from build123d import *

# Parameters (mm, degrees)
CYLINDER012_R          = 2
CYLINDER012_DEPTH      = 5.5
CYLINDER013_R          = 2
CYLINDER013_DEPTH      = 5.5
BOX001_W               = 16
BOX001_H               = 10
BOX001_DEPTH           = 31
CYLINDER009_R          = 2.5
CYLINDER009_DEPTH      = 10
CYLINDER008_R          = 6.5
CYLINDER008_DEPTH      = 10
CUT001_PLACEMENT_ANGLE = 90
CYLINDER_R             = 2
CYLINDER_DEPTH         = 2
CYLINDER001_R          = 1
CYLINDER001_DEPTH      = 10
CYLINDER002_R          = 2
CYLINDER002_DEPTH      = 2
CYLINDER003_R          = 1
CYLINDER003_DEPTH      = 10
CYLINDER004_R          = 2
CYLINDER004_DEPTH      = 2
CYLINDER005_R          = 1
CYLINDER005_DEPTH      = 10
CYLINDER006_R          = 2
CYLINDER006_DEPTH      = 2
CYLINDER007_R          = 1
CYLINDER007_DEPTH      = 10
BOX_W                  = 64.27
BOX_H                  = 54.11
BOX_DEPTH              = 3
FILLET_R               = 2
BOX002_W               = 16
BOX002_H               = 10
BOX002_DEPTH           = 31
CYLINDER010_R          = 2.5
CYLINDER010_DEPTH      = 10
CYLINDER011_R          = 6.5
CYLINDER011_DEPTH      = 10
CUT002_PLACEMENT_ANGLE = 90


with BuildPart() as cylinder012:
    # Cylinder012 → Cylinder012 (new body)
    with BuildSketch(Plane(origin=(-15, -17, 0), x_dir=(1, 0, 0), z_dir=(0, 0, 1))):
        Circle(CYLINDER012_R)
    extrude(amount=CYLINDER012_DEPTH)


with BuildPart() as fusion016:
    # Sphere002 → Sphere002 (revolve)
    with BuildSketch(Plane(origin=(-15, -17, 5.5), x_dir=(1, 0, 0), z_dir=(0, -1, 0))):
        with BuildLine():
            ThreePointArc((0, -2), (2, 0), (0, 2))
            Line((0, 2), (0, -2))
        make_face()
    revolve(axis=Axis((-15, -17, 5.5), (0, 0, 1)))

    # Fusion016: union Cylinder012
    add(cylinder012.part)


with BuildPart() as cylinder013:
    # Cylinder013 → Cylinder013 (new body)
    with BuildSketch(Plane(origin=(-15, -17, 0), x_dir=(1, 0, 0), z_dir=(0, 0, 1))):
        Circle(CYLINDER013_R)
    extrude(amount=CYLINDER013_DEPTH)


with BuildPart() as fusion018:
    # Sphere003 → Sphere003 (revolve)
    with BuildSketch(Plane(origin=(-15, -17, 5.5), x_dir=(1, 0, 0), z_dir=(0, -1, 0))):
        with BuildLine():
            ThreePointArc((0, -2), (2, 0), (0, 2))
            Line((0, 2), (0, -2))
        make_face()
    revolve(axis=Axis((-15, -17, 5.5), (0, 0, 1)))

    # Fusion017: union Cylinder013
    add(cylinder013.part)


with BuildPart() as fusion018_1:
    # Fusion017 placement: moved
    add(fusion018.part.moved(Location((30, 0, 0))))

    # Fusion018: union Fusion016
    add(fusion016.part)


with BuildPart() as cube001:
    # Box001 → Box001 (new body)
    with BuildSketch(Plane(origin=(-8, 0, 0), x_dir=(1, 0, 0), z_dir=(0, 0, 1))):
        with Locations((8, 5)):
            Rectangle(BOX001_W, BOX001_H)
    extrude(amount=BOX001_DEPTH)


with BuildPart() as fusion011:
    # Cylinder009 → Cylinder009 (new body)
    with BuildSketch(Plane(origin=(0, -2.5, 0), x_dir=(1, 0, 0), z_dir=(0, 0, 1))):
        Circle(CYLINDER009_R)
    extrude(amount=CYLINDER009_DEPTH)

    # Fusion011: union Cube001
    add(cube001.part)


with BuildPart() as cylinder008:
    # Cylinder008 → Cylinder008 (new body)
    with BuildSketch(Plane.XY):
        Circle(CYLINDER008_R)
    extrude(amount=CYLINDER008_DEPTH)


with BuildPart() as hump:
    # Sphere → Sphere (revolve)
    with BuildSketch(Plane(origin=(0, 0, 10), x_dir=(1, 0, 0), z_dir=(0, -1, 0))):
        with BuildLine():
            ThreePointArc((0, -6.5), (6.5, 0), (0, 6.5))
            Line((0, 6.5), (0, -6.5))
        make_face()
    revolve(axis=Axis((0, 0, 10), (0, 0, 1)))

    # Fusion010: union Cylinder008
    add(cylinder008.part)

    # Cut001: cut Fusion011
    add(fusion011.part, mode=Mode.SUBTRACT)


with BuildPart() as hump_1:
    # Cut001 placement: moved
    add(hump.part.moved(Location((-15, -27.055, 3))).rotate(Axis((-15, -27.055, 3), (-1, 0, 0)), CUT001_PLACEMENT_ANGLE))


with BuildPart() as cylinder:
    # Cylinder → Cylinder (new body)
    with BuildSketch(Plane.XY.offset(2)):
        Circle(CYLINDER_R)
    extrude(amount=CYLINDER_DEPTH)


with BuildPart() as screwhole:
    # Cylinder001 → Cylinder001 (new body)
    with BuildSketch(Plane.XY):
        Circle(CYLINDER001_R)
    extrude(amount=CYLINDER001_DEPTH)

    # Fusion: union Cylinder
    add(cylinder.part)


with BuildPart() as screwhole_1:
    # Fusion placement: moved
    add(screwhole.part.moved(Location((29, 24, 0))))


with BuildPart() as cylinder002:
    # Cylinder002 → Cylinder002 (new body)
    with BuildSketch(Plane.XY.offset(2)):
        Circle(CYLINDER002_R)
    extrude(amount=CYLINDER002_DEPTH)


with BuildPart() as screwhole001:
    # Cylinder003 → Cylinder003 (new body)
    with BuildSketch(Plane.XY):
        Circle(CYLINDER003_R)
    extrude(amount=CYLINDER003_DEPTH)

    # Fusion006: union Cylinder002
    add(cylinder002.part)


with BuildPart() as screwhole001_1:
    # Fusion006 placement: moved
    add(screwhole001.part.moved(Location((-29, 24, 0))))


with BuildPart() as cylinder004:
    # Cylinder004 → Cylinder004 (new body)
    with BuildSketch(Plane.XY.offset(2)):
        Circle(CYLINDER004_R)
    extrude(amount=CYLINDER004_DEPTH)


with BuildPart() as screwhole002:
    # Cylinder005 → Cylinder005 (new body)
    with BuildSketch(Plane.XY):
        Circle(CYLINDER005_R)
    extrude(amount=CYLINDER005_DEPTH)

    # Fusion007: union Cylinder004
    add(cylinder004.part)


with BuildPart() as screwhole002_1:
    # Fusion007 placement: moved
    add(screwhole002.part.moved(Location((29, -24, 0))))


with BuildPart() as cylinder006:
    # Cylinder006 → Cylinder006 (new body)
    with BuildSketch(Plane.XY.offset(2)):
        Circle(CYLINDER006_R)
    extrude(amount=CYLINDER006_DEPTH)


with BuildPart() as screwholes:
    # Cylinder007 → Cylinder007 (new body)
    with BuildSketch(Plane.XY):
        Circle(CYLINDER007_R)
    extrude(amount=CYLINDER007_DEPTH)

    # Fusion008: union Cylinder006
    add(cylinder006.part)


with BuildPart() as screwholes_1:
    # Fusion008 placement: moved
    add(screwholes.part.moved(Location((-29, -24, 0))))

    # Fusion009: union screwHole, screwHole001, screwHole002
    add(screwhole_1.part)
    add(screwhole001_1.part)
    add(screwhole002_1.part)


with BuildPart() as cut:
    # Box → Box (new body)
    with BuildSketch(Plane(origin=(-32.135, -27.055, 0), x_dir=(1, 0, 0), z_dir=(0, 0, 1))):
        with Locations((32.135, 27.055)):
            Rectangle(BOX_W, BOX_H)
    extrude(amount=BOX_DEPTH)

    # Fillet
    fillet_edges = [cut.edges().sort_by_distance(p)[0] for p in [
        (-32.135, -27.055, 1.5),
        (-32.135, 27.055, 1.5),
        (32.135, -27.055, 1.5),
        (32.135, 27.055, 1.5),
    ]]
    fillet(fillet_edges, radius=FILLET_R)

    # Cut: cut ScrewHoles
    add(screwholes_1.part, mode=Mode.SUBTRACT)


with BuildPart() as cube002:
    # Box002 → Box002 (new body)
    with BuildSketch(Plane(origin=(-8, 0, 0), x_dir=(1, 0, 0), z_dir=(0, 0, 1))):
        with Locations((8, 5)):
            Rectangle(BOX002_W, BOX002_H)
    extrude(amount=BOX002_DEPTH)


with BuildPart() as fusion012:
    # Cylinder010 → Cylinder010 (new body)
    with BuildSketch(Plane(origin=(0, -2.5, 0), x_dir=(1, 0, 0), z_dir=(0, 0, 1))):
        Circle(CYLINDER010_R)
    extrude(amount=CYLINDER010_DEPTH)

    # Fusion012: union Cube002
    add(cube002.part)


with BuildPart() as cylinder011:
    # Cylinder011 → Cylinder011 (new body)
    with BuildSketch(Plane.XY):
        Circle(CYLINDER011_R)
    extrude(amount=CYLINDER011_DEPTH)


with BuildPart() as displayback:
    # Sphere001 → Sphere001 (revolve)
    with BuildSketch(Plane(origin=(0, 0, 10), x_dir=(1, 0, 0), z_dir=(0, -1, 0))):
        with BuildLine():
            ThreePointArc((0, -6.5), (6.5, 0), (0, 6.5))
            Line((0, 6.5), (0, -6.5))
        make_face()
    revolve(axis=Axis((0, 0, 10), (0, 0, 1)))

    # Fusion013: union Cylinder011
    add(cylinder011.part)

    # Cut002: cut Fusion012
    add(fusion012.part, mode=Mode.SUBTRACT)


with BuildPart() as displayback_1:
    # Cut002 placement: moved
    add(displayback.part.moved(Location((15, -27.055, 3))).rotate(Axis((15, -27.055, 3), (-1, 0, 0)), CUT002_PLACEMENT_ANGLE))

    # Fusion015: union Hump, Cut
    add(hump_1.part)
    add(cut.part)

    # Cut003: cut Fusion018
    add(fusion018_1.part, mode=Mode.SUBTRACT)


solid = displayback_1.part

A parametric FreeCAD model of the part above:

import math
import FreeCAD as App
import Part
import Sketcher

V = App.Vector


def edges_at(feature, points):
    """Names of the edges that pass closest to the given points."""
    edges = feature.Shape.Edges
    near = lambda p: min(range(len(edges)), key=lambda i: edges[i].distToShape(Part.Vertex(*p))[0])
    return sorted({f"Edge{near(p) + 1}" for p in points})

doc = App.newDocument("Part")
body = doc.addObject("PartDesign::Body", "Body")

sketch1 = doc.addObject("Sketcher::SketchObject", "Sketch")
body.addObject(sketch1)
sketch1.AttachmentSupport = (doc.XY_Plane, [""])
sketch1.MapMode = "FlatFace"
sketch1.addGeometry(Part.Circle(V(-15, -17, 0), V(0, 0, 1), 2), False)
sketch1.addConstraint(Sketcher.Constraint("Diameter", 0, 4.0))
sketch1.addConstraint(Sketcher.Constraint("DistanceX", 0, 3, -1, 1, 15.0))
sketch1.addConstraint(Sketcher.Constraint("DistanceY", 0, 3, -1, 1, 17.0))
pad1 = doc.addObject("PartDesign::Pad", "Pad")
body.addObject(pad1)
pad1.Profile = sketch1
pad1.Length = 5.5
body2 = doc.addObject("PartDesign::Body", "Body001")

sketch2 = doc.addObject("Sketcher::SketchObject", "Sketch001")
body2.addObject(sketch2)
sketch2.AttachmentSupport = (doc.getObject("XZ_Plane001"), [""])
sketch2.MapMode = "FlatFace"
sketch2.AttachmentOffset = App.Placement(V(0, 0, 17), App.Rotation())
sketch2.addGeometry(Part.ArcOfCircle(Part.Circle(V(-15, 5.5, 0), V(0, 0, 1), 2), math.radians(-90), math.radians(90)), False)
sketch2.addGeometry(Part.LineSegment(V(-15, 7.5, 0), V(-15, 3.5, 0)), False)
sketch2.addGeometry(Part.LineSegment(V(-15, 3.5, 0), V(-15, 7.5, 0)), True)
sketch2.addConstraint(Sketcher.Constraint("Coincident", 0, 1, 1, 2))
sketch2.addConstraint(Sketcher.Constraint("Coincident", 1, 1, 0, 2))
sketch2.addConstraint(Sketcher.Constraint("Vertical", 1))
sketch2.addConstraint(Sketcher.Constraint("Vertical", 2))
sketch2.addConstraint(Sketcher.Constraint("Coincident", 2, 1, 0, 1))
sketch2.addConstraint(Sketcher.Constraint("Equal", 1, 2))
sketch2.addConstraint(Sketcher.Constraint("Radius", 0, 2.0))
sketch2.addConstraint(Sketcher.Constraint("DistanceX", 0, 3, -1, 1, 15.0))
sketch2.addConstraint(Sketcher.Constraint("DistanceX", 0, 1, -1, 1, 15.0))
sketch2.addConstraint(Sketcher.Constraint("DistanceY", -1, 1, 0, 3, 5.5))
revolution = doc.addObject("PartDesign::Revolution", "Revolution")
body2.addObject(revolution)
revolution.Profile = sketch2
revolution.ReferenceAxis = (sketch2, ["Axis0"])
revolution.Angle = 360
doc.recompute()

boolean = doc.addObject("PartDesign::Boolean", "Boolean")
body2.addObject(boolean)
boolean.Type = "Fuse"
boolean.addObjects([body])
body3 = doc.addObject("PartDesign::Body", "Body002")

sketch3 = doc.addObject("Sketcher::SketchObject", "Sketch002")
body3.addObject(sketch3)
sketch3.AttachmentSupport = (doc.getObject("XY_Plane002"), [""])
sketch3.MapMode = "FlatFace"
sketch3.addGeometry(Part.Circle(V(-15, -17, 0), V(0, 0, 1), 2), False)
sketch3.addConstraint(Sketcher.Constraint("Diameter", 0, 4.0))
sketch3.addConstraint(Sketcher.Constraint("DistanceX", 0, 3, -1, 1, 15.0))
sketch3.addConstraint(Sketcher.Constraint("DistanceY", 0, 3, -1, 1, 17.0))
pad2 = doc.addObject("PartDesign::Pad", "Pad001")
body3.addObject(pad2)
pad2.Profile = sketch3
pad2.Length = 5.5
body4 = doc.addObject("PartDesign::Body", "Body003")

sketch4 = doc.addObject("Sketcher::SketchObject", "Sketch003")
body4.addObject(sketch4)
sketch4.AttachmentSupport = (doc.getObject("XZ_Plane003"), [""])
sketch4.MapMode = "FlatFace"
sketch4.AttachmentOffset = App.Placement(V(0, 0, 17), App.Rotation())
sketch4.addGeometry(Part.ArcOfCircle(Part.Circle(V(-15, 5.5, 0), V(0, 0, 1), 2), math.radians(-90), math.radians(90)), False)
sketch4.addGeometry(Part.LineSegment(V(-15, 7.5, 0), V(-15, 3.5, 0)), False)
sketch4.addGeometry(Part.LineSegment(V(-15, 3.5, 0), V(-15, 7.5, 0)), True)
sketch4.addConstraint(Sketcher.Constraint("Coincident", 0, 1, 1, 2))
sketch4.addConstraint(Sketcher.Constraint("Coincident", 1, 1, 0, 2))
sketch4.addConstraint(Sketcher.Constraint("Vertical", 1))
sketch4.addConstraint(Sketcher.Constraint("Vertical", 2))
sketch4.addConstraint(Sketcher.Constraint("Coincident", 2, 1, 0, 1))
sketch4.addConstraint(Sketcher.Constraint("Equal", 1, 2))
sketch4.addConstraint(Sketcher.Constraint("Radius", 0, 2.0))
sketch4.addConstraint(Sketcher.Constraint("DistanceX", 0, 3, -1, 1, 15.0))
sketch4.addConstraint(Sketcher.Constraint("DistanceX", 0, 1, -1, 1, 15.0))
sketch4.addConstraint(Sketcher.Constraint("DistanceY", -1, 1, 0, 3, 5.5))
revolution2 = doc.addObject("PartDesign::Revolution", "Revolution001")
body4.addObject(revolution2)
revolution2.Profile = sketch4
revolution2.ReferenceAxis = (sketch4, ["Axis0"])
revolution2.Angle = 360
doc.recompute()

boolean2 = doc.addObject("PartDesign::Boolean", "Boolean001")
body4.addObject(boolean2)
boolean2.Type = "Fuse"
boolean2.addObjects([body3])
body5 = doc.addObject("PartDesign::Body", "Body004")
body5.AllowCompound = True
doc.recompute()

body4.Placement = App.Placement(V(30, 0, 0), App.Rotation(V(0, 0, 1), 0))
boolean3 = doc.addObject("PartDesign::Boolean", "Boolean002")
body5.addObject(boolean3)
boolean3.Type = "Fuse"
boolean3.addObjects([body4])
doc.recompute()

boolean4 = doc.addObject("PartDesign::Boolean", "Boolean003")
body5.addObject(boolean4)
boolean4.Type = "Fuse"
boolean4.addObjects([body2])
body6 = doc.addObject("PartDesign::Body", "Body005")

sketch5 = doc.addObject("Sketcher::SketchObject", "Sketch004")
body6.addObject(sketch5)
sketch5.AttachmentSupport = (doc.getObject("XY_Plane005"), [""])
sketch5.MapMode = "FlatFace"
sketch5.addGeometry(Part.LineSegment(V(-8, 10, 0), V(-8, 0, 0)), False)
sketch5.addGeometry(Part.LineSegment(V(-8, 0, 0), V(8, 0, 0)), False)
sketch5.addGeometry(Part.LineSegment(V(8, 0, 0), V(8, 10, 0)), False)
sketch5.addGeometry(Part.LineSegment(V(8, 10, 0), V(-8, 10, 0)), False)
sketch5.addConstraint(Sketcher.Constraint("Coincident", 0, 2, 1, 1))
sketch5.addConstraint(Sketcher.Constraint("Coincident", 1, 2, 2, 1))
sketch5.addConstraint(Sketcher.Constraint("Coincident", 2, 2, 3, 1))
sketch5.addConstraint(Sketcher.Constraint("Coincident", 3, 2, 0, 1))
sketch5.addConstraint(Sketcher.Constraint("Vertical", 0))
sketch5.addConstraint(Sketcher.Constraint("Horizontal", 1))
sketch5.addConstraint(Sketcher.Constraint("Vertical", 2))
sketch5.addConstraint(Sketcher.Constraint("Horizontal", 3))
sketch5.addConstraint(Sketcher.Constraint("Symmetric", 0, 2, 1, 2, -1, 1))
sketch5.addConstraint(Sketcher.Constraint("DistanceX", 1, 1, 1, 2, 16.0))
sketch5.addConstraint(Sketcher.Constraint("DistanceY", 0, 2, 0, 1, 10.0))
pad3 = doc.addObject("PartDesign::Pad", "Pad002")
body6.addObject(pad3)
pad3.Profile = sketch5
pad3.Length = 31
body7 = doc.addObject("PartDesign::Body", "Body006")
body7.AllowCompound = True

sketch6 = doc.addObject("Sketcher::SketchObject", "Sketch005")
body7.addObject(sketch6)
sketch6.AttachmentSupport = (doc.getObject("XY_Plane006"), [""])
sketch6.MapMode = "FlatFace"
sketch6.addGeometry(Part.Circle(V(0, -2.5, 0), V(0, 0, 1), 2.5), False)
sketch6.addConstraint(Sketcher.Constraint("PointOnObject", 0, 3, -2))
sketch6.addConstraint(Sketcher.Constraint("Diameter", 0, 5.0))
sketch6.addConstraint(Sketcher.Constraint("DistanceY", 0, 3, -1, 1, 2.5))
pad4 = doc.addObject("PartDesign::Pad", "Pad003")
body7.addObject(pad4)
pad4.Profile = sketch6
pad4.Length = 10
doc.recompute()

boolean5 = doc.addObject("PartDesign::Boolean", "Boolean004")
body7.addObject(boolean5)
boolean5.Type = "Fuse"
boolean5.addObjects([body6])
body8 = doc.addObject("PartDesign::Body", "Body007")

sketch7 = doc.addObject("Sketcher::SketchObject", "Sketch006")
body8.addObject(sketch7)
sketch7.AttachmentSupport = (doc.getObject("XY_Plane007"), [""])
sketch7.MapMode = "FlatFace"
sketch7.addGeometry(Part.Circle(V(0, 0, 0), V(0, 0, 1), 6.5), False)
sketch7.addConstraint(Sketcher.Constraint("Coincident", 0, 3, -1, 1))
sketch7.addConstraint(Sketcher.Constraint("Diameter", 0, 13.0))
pad5 = doc.addObject("PartDesign::Pad", "Pad004")
body8.addObject(pad5)
pad5.Profile = sketch7
pad5.Length = 10
body9 = doc.addObject("PartDesign::Body", "Body008")

sketch8 = doc.addObject("Sketcher::SketchObject", "Sketch007")
body9.addObject(sketch8)
sketch8.AttachmentSupport = (doc.getObject("XZ_Plane008"), [""])
sketch8.MapMode = "FlatFace"
sketch8.addGeometry(Part.ArcOfCircle(Part.Circle(V(0, 10, 0), V(0, 0, 1), 6.5), math.radians(-90), math.radians(90)), False)
sketch8.addGeometry(Part.LineSegment(V(0, 16.5, 0), V(0, 3.5, 0)), False)
sketch8.addConstraint(Sketcher.Constraint("Coincident", 0, 1, 1, 2))
sketch8.addConstraint(Sketcher.Constraint("Coincident", 1, 1, 0, 2))
sketch8.addConstraint(Sketcher.Constraint("Vertical", 1))
sketch8.addConstraint(Sketcher.Constraint("PointOnObject", 0, 3, -2))
sketch8.addConstraint(Sketcher.Constraint("PointOnObject", 0, 1, -2))
sketch8.addConstraint(Sketcher.Constraint("Radius", 0, 6.5))
sketch8.addConstraint(Sketcher.Constraint("DistanceY", -1, 1, 0, 3, 10.0))
revolution3 = doc.addObject("PartDesign::Revolution", "Revolution002")
body9.addObject(revolution3)
revolution3.Profile = sketch8
revolution3.ReferenceAxis = (sketch8, ["V_Axis"])
revolution3.Angle = 360
doc.recompute()

boolean6 = doc.addObject("PartDesign::Boolean", "Boolean005")
body9.addObject(boolean6)
boolean6.Type = "Fuse"
boolean6.addObjects([body8])
doc.recompute()

boolean7 = doc.addObject("PartDesign::Boolean", "Boolean006")
body9.addObject(boolean7)
boolean7.Type = "Cut"
boolean7.addObjects([body7])
body10 = doc.addObject("PartDesign::Body", "Body009")
doc.recompute()

body9.Placement = App.Placement(V(-15, -27.055, 3), App.Rotation(V(-1, 0, 0), 90))
boolean8 = doc.addObject("PartDesign::Boolean", "Boolean007")
body10.addObject(boolean8)
boolean8.Type = "Fuse"
boolean8.addObjects([body9])
body11 = doc.addObject("PartDesign::Body", "Body010")

sketch9 = doc.addObject("Sketcher::SketchObject", "Sketch008")
body11.addObject(sketch9)
sketch9.AttachmentSupport = (doc.getObject("XY_Plane010"), [""])
sketch9.MapMode = "FlatFace"
sketch9.AttachmentOffset = App.Placement(V(0, 0, 2), App.Rotation())
sketch9.addGeometry(Part.Circle(V(0, 0, 0), V(0, 0, 1), 2), False)
sketch9.addConstraint(Sketcher.Constraint("Coincident", 0, 3, -1, 1))
sketch9.addConstraint(Sketcher.Constraint("Diameter", 0, 4.0))
pad6 = doc.addObject("PartDesign::Pad", "Pad005")
body11.addObject(pad6)
pad6.Profile = sketch9
pad6.Length = 2
body12 = doc.addObject("PartDesign::Body", "Body011")

sketch10 = doc.addObject("Sketcher::SketchObject", "Sketch009")
body12.addObject(sketch10)
sketch10.AttachmentSupport = (doc.getObject("XY_Plane011"), [""])
sketch10.MapMode = "FlatFace"
sketch10.addGeometry(Part.Circle(V(0, 0, 0), V(0, 0, 1), 1), False)
sketch10.addConstraint(Sketcher.Constraint("Coincident", 0, 3, -1, 1))
sketch10.addConstraint(Sketcher.Constraint("Diameter", 0, 2.0))
pad7 = doc.addObject("PartDesign::Pad", "Pad006")
body12.addObject(pad7)
pad7.Profile = sketch10
pad7.Length = 10
doc.recompute()

boolean9 = doc.addObject("PartDesign::Boolean", "Boolean008")
body12.addObject(boolean9)
boolean9.Type = "Fuse"
boolean9.addObjects([body11])
body13 = doc.addObject("PartDesign::Body", "Body012")
doc.recompute()

body12.Placement = App.Placement(V(29, 24, 0), App.Rotation(V(0, 0, 1), 0))
boolean10 = doc.addObject("PartDesign::Boolean", "Boolean009")
body13.addObject(boolean10)
boolean10.Type = "Fuse"
boolean10.addObjects([body12])
body14 = doc.addObject("PartDesign::Body", "Body013")

sketch11 = doc.addObject("Sketcher::SketchObject", "Sketch010")
body14.addObject(sketch11)
sketch11.AttachmentSupport = (doc.getObject("XY_Plane013"), [""])
sketch11.MapMode = "FlatFace"
sketch11.AttachmentOffset = App.Placement(V(0, 0, 2), App.Rotation())
sketch11.addGeometry(Part.Circle(V(0, 0, 0), V(0, 0, 1), 2), False)
sketch11.addConstraint(Sketcher.Constraint("Coincident", 0, 3, -1, 1))
sketch11.addConstraint(Sketcher.Constraint("Diameter", 0, 4.0))
pad8 = doc.addObject("PartDesign::Pad", "Pad007")
body14.addObject(pad8)
pad8.Profile = sketch11
pad8.Length = 2
body15 = doc.addObject("PartDesign::Body", "Body014")

sketch12 = doc.addObject("Sketcher::SketchObject", "Sketch011")
body15.addObject(sketch12)
sketch12.AttachmentSupport = (doc.getObject("XY_Plane014"), [""])
sketch12.MapMode = "FlatFace"
sketch12.addGeometry(Part.Circle(V(0, 0, 0), V(0, 0, 1), 1), False)
sketch12.addConstraint(Sketcher.Constraint("Coincident", 0, 3, -1, 1))
sketch12.addConstraint(Sketcher.Constraint("Diameter", 0, 2.0))
pad9 = doc.addObject("PartDesign::Pad", "Pad008")
body15.addObject(pad9)
pad9.Profile = sketch12
pad9.Length = 10
doc.recompute()

boolean11 = doc.addObject("PartDesign::Boolean", "Boolean010")
body15.addObject(boolean11)
boolean11.Type = "Fuse"
boolean11.addObjects([body14])
body16 = doc.addObject("PartDesign::Body", "Body015")
doc.recompute()

body15.Placement = App.Placement(V(-29, 24, 0), App.Rotation(V(0, 0, 1), 0))
boolean12 = doc.addObject("PartDesign::Boolean", "Boolean011")
body16.addObject(boolean12)
boolean12.Type = "Fuse"
boolean12.addObjects([body15])
body17 = doc.addObject("PartDesign::Body", "Body016")

sketch13 = doc.addObject("Sketcher::SketchObject", "Sketch012")
body17.addObject(sketch13)
sketch13.AttachmentSupport = (doc.getObject("XY_Plane016"), [""])
sketch13.MapMode = "FlatFace"
sketch13.AttachmentOffset = App.Placement(V(0, 0, 2), App.Rotation())
sketch13.addGeometry(Part.Circle(V(0, 0, 0), V(0, 0, 1), 2), False)
sketch13.addConstraint(Sketcher.Constraint("Coincident", 0, 3, -1, 1))
sketch13.addConstraint(Sketcher.Constraint("Diameter", 0, 4.0))
pad10 = doc.addObject("PartDesign::Pad", "Pad009")
body17.addObject(pad10)
pad10.Profile = sketch13
pad10.Length = 2
body18 = doc.addObject("PartDesign::Body", "Body017")

sketch14 = doc.addObject("Sketcher::SketchObject", "Sketch013")
body18.addObject(sketch14)
sketch14.AttachmentSupport = (doc.getObject("XY_Plane017"), [""])
sketch14.MapMode = "FlatFace"
sketch14.addGeometry(Part.Circle(V(0, 0, 0), V(0, 0, 1), 1), False)
sketch14.addConstraint(Sketcher.Constraint("Coincident", 0, 3, -1, 1))
sketch14.addConstraint(Sketcher.Constraint("Diameter", 0, 2.0))
pad11 = doc.addObject("PartDesign::Pad", "Pad010")
body18.addObject(pad11)
pad11.Profile = sketch14
pad11.Length = 10
doc.recompute()

boolean13 = doc.addObject("PartDesign::Boolean", "Boolean012")
body18.addObject(boolean13)
boolean13.Type = "Fuse"
boolean13.addObjects([body17])
body19 = doc.addObject("PartDesign::Body", "Body018")
doc.recompute()

body18.Placement = App.Placement(V(29, -24, 0), App.Rotation(V(0, 0, 1), 0))
boolean14 = doc.addObject("PartDesign::Boolean", "Boolean013")
body19.addObject(boolean14)
boolean14.Type = "Fuse"
boolean14.addObjects([body18])
body20 = doc.addObject("PartDesign::Body", "Body019")

sketch15 = doc.addObject("Sketcher::SketchObject", "Sketch014")
body20.addObject(sketch15)
sketch15.AttachmentSupport = (doc.getObject("XY_Plane019"), [""])
sketch15.MapMode = "FlatFace"
sketch15.AttachmentOffset = App.Placement(V(0, 0, 2), App.Rotation())
sketch15.addGeometry(Part.Circle(V(0, 0, 0), V(0, 0, 1), 2), False)
sketch15.addConstraint(Sketcher.Constraint("Coincident", 0, 3, -1, 1))
sketch15.addConstraint(Sketcher.Constraint("Diameter", 0, 4.0))
pad12 = doc.addObject("PartDesign::Pad", "Pad011")
body20.addObject(pad12)
pad12.Profile = sketch15
pad12.Length = 2
body21 = doc.addObject("PartDesign::Body", "Body020")

sketch16 = doc.addObject("Sketcher::SketchObject", "Sketch015")
body21.addObject(sketch16)
sketch16.AttachmentSupport = (doc.getObject("XY_Plane020"), [""])
sketch16.MapMode = "FlatFace"
sketch16.addGeometry(Part.Circle(V(0, 0, 0), V(0, 0, 1), 1), False)
sketch16.addConstraint(Sketcher.Constraint("Coincident", 0, 3, -1, 1))
sketch16.addConstraint(Sketcher.Constraint("Diameter", 0, 2.0))
pad13 = doc.addObject("PartDesign::Pad", "Pad012")
body21.addObject(pad13)
pad13.Profile = sketch16
pad13.Length = 10
doc.recompute()

boolean15 = doc.addObject("PartDesign::Boolean", "Boolean014")
body21.addObject(boolean15)
boolean15.Type = "Fuse"
boolean15.addObjects([body20])
body22 = doc.addObject("PartDesign::Body", "Body021")
body22.AllowCompound = True
doc.recompute()

body21.Placement = App.Placement(V(-29, -24, 0), App.Rotation(V(0, 0, 1), 0))
boolean16 = doc.addObject("PartDesign::Boolean", "Boolean015")
body22.addObject(boolean16)
boolean16.Type = "Fuse"
boolean16.addObjects([body21])
doc.recompute()

boolean17 = doc.addObject("PartDesign::Boolean", "Boolean016")
body22.addObject(boolean17)
boolean17.Type = "Fuse"
boolean17.addObjects([body13])
doc.recompute()

boolean18 = doc.addObject("PartDesign::Boolean", "Boolean017")
body22.addObject(boolean18)
boolean18.Type = "Fuse"
boolean18.addObjects([body16])
doc.recompute()

boolean19 = doc.addObject("PartDesign::Boolean", "Boolean018")
body22.addObject(boolean19)
boolean19.Type = "Fuse"
boolean19.addObjects([body19])
body23 = doc.addObject("PartDesign::Body", "Body022")

sketch17 = doc.addObject("Sketcher::SketchObject", "Sketch016")
body23.addObject(sketch17)
sketch17.AttachmentSupport = (doc.getObject("XY_Plane022"), [""])
sketch17.MapMode = "FlatFace"
sketch17.addGeometry(Part.LineSegment(V(-32.135, 27.055, 0), V(-32.135, -27.055, 0)), False)
sketch17.addGeometry(Part.LineSegment(V(-32.135, -27.055, 0), V(32.135, -27.055, 0)), False)
sketch17.addGeometry(Part.LineSegment(V(32.135, -27.055, 0), V(32.135, 27.055, 0)), False)
sketch17.addGeometry(Part.LineSegment(V(32.135, 27.055, 0), V(-32.135, 27.055, 0)), False)
sketch17.addConstraint(Sketcher.Constraint("Coincident", 0, 2, 1, 1))
sketch17.addConstraint(Sketcher.Constraint("Coincident", 1, 2, 2, 1))
sketch17.addConstraint(Sketcher.Constraint("Coincident", 2, 2, 3, 1))
sketch17.addConstraint(Sketcher.Constraint("Coincident", 3, 2, 0, 1))
sketch17.addConstraint(Sketcher.Constraint("Vertical", 0))
sketch17.addConstraint(Sketcher.Constraint("Horizontal", 1))
sketch17.addConstraint(Sketcher.Constraint("Vertical", 2))
sketch17.addConstraint(Sketcher.Constraint("Horizontal", 3))
sketch17.addConstraint(Sketcher.Constraint("Symmetric", 0, 2, 2, 2, -1, 1))
sketch17.addConstraint(Sketcher.Constraint("DistanceX", 1, 1, 1, 2, 64.27))
sketch17.addConstraint(Sketcher.Constraint("DistanceY", 0, 2, 0, 1, 54.11))
pad14 = doc.addObject("PartDesign::Pad", "Pad013")
body23.addObject(pad14)
pad14.Profile = sketch17
pad14.Length = 3
doc.recompute()

fillet = doc.addObject("PartDesign::Fillet", "Fillet")
body23.addObject(fillet)
fillet.Base = (pad14, edges_at(pad14, [
    (-32.135, -27.055, 1.5),
    (-32.135, 27.055, 1.5),
    (32.135, -27.055, 1.5),
    (32.135, 27.055, 1.5),
]))
fillet.Radius = 2
doc.recompute()

boolean20 = doc.addObject("PartDesign::Boolean", "Boolean019")
body23.addObject(boolean20)
boolean20.Type = "Cut"
boolean20.addObjects([body22])
body24 = doc.addObject("PartDesign::Body", "Body023")

sketch18 = doc.addObject("Sketcher::SketchObject", "Sketch017")
body24.addObject(sketch18)
sketch18.AttachmentSupport = (doc.getObject("XY_Plane023"), [""])
sketch18.MapMode = "FlatFace"
sketch18.addGeometry(Part.LineSegment(V(-8, 10, 0), V(-8, 0, 0)), False)
sketch18.addGeometry(Part.LineSegment(V(-8, 0, 0), V(8, 0, 0)), False)
sketch18.addGeometry(Part.LineSegment(V(8, 0, 0), V(8, 10, 0)), False)
sketch18.addGeometry(Part.LineSegment(V(8, 10, 0), V(-8, 10, 0)), False)
sketch18.addConstraint(Sketcher.Constraint("Coincident", 0, 2, 1, 1))
sketch18.addConstraint(Sketcher.Constraint("Coincident", 1, 2, 2, 1))
sketch18.addConstraint(Sketcher.Constraint("Coincident", 2, 2, 3, 1))
sketch18.addConstraint(Sketcher.Constraint("Coincident", 3, 2, 0, 1))
sketch18.addConstraint(Sketcher.Constraint("Vertical", 0))
sketch18.addConstraint(Sketcher.Constraint("Horizontal", 1))
sketch18.addConstraint(Sketcher.Constraint("Vertical", 2))
sketch18.addConstraint(Sketcher.Constraint("Horizontal", 3))
sketch18.addConstraint(Sketcher.Constraint("Symmetric", 0, 2, 1, 2, -1, 1))
sketch18.addConstraint(Sketcher.Constraint("DistanceX", 1, 1, 1, 2, 16.0))
sketch18.addConstraint(Sketcher.Constraint("DistanceY", 0, 2, 0, 1, 10.0))
pad15 = doc.addObject("PartDesign::Pad", "Pad014")
body24.addObject(pad15)
pad15.Profile = sketch18
pad15.Length = 31
body25 = doc.addObject("PartDesign::Body", "Body024")
body25.AllowCompound = True

sketch19 = doc.addObject("Sketcher::SketchObject", "Sketch018")
body25.addObject(sketch19)
sketch19.AttachmentSupport = (doc.getObject("XY_Plane024"), [""])
sketch19.MapMode = "FlatFace"
sketch19.addGeometry(Part.Circle(V(0, -2.5, 0), V(0, 0, 1), 2.5), False)
sketch19.addConstraint(Sketcher.Constraint("PointOnObject", 0, 3, -2))
sketch19.addConstraint(Sketcher.Constraint("Diameter", 0, 5.0))
sketch19.addConstraint(Sketcher.Constraint("DistanceY", 0, 3, -1, 1, 2.5))
pad16 = doc.addObject("PartDesign::Pad", "Pad015")
body25.addObject(pad16)
pad16.Profile = sketch19
pad16.Length = 10
doc.recompute()

boolean21 = doc.addObject("PartDesign::Boolean", "Boolean020")
body25.addObject(boolean21)
boolean21.Type = "Fuse"
boolean21.addObjects([body24])
body26 = doc.addObject("PartDesign::Body", "Body025")

sketch20 = doc.addObject("Sketcher::SketchObject", "Sketch019")
body26.addObject(sketch20)
sketch20.AttachmentSupport = (doc.getObject("XY_Plane025"), [""])
sketch20.MapMode = "FlatFace"
sketch20.addGeometry(Part.Circle(V(0, 0, 0), V(0, 0, 1), 6.5), False)
sketch20.addConstraint(Sketcher.Constraint("Coincident", 0, 3, -1, 1))
sketch20.addConstraint(Sketcher.Constraint("Diameter", 0, 13.0))
pad17 = doc.addObject("PartDesign::Pad", "Pad016")
body26.addObject(pad17)
pad17.Profile = sketch20
pad17.Length = 10
body27 = doc.addObject("PartDesign::Body", "Body026")

sketch21 = doc.addObject("Sketcher::SketchObject", "Sketch020")
body27.addObject(sketch21)
sketch21.AttachmentSupport = (doc.getObject("XZ_Plane026"), [""])
sketch21.MapMode = "FlatFace"
sketch21.addGeometry(Part.ArcOfCircle(Part.Circle(V(0, 10, 0), V(0, 0, 1), 6.5), math.radians(-90), math.radians(90)), False)
sketch21.addGeometry(Part.LineSegment(V(0, 16.5, 0), V(0, 3.5, 0)), False)
sketch21.addConstraint(Sketcher.Constraint("Coincident", 0, 1, 1, 2))
sketch21.addConstraint(Sketcher.Constraint("Coincident", 1, 1, 0, 2))
sketch21.addConstraint(Sketcher.Constraint("Vertical", 1))
sketch21.addConstraint(Sketcher.Constraint("PointOnObject", 0, 3, -2))
sketch21.addConstraint(Sketcher.Constraint("PointOnObject", 0, 1, -2))
sketch21.addConstraint(Sketcher.Constraint("Radius", 0, 6.5))
sketch21.addConstraint(Sketcher.Constraint("DistanceY", -1, 1, 0, 3, 10.0))
revolution4 = doc.addObject("PartDesign::Revolution", "Revolution003")
body27.addObject(revolution4)
revolution4.Profile = sketch21
revolution4.ReferenceAxis = (sketch21, ["V_Axis"])
revolution4.Angle = 360
doc.recompute()

boolean22 = doc.addObject("PartDesign::Boolean", "Boolean021")
body27.addObject(boolean22)
boolean22.Type = "Fuse"
boolean22.addObjects([body26])
doc.recompute()

boolean23 = doc.addObject("PartDesign::Boolean", "Boolean022")
body27.addObject(boolean23)
boolean23.Type = "Cut"
boolean23.addObjects([body25])
body28 = doc.addObject("PartDesign::Body", "Body027")
body28.AllowCompound = True
doc.recompute()

body27.Placement = App.Placement(V(15, -27.055, 3), App.Rotation(V(-1, 0, 0), 90))
boolean24 = doc.addObject("PartDesign::Boolean", "Boolean023")
body28.addObject(boolean24)
boolean24.Type = "Fuse"
boolean24.addObjects([body27])
doc.recompute()

boolean25 = doc.addObject("PartDesign::Boolean", "Boolean024")
body28.addObject(boolean25)
boolean25.Type = "Fuse"
boolean25.addObjects([body10])
doc.recompute()

boolean26 = doc.addObject("PartDesign::Boolean", "Boolean025")
body28.addObject(boolean26)
boolean26.Type = "Fuse"
boolean26.addObjects([body23])
doc.recompute()

boolean27 = doc.addObject("PartDesign::Boolean", "Boolean026")
body28.addObject(boolean27)
boolean27.Type = "Cut"
boolean27.addObjects([body5])

doc.recompute()
